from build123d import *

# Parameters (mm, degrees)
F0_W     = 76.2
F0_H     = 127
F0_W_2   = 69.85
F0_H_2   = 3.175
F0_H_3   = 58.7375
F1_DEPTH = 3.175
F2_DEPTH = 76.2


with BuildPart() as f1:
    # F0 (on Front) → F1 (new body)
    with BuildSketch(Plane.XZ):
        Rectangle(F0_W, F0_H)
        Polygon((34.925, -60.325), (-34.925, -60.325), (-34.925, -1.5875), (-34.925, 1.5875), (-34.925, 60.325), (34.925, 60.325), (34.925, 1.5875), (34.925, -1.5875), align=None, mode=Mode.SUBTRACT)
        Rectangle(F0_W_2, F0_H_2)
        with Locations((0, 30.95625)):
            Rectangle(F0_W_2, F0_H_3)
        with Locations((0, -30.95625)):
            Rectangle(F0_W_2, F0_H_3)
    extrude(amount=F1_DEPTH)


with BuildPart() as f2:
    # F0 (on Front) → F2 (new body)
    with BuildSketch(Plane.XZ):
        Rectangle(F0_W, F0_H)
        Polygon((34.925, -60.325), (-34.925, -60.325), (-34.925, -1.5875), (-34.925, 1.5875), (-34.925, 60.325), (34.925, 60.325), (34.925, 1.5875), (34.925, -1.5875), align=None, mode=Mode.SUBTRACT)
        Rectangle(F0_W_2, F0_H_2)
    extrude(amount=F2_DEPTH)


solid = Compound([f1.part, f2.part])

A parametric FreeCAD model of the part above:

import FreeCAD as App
import Part
import Sketcher
from FreeCAD import Vector
Q = App.Units.Quantity


def add_polygon(sketch, points):
    """Adds a closed chain of lines whose ends are joined by coincident constraints."""
    first, n = sketch.GeometryCount, len(points)
    for a, b in zip(points, points[1:] + points[:1]):
        sketch.addGeometry(Part.LineSegment(App.Vector(*a, 0), App.Vector(*b, 0)), False)
    for i in range(n):
        sketch.addConstraint(Sketcher.Constraint("Coincident", first + i, 2, first + (i + 1) % n, 1))

doc = App.newDocument("Part")
body = doc.addObject("PartDesign::Body", "Body")

# Sketch on XZ plane
sketch1 = doc.addObject("Sketcher::SketchObject", "Sketch")
body.addObject(sketch1)
sketch1.AttachmentSupport = (doc.XZ_Plane, [""])
sketch1.MapMode = "FlatFace"
add_polygon(sketch1, [(-38.1, 63.5), (-38.1, -63.5), (38.1, -63.5), (38.1, 63.5)])  # lines 0-3
sketch1.addConstraint(Sketcher.Constraint("Vertical", 0))
sketch1.addConstraint(Sketcher.Constraint("Horizontal", 1))
sketch1.addConstraint(Sketcher.Constraint("Vertical", 2))
sketch1.addConstraint(Sketcher.Constraint("Horizontal", 3))
sketch1.addConstraint(Sketcher.Constraint("Symmetric", 0, 2, 2, 2, -1, 1))
sketch1.addConstraint(Sketcher.Constraint("DistanceX", 1, 1, 1, 2, Q("3 in")))
sketch1.addConstraint(Sketcher.Constraint("DistanceY", 0, 2, 0, 1, Q("5 in")))
pad1 = doc.addObject("PartDesign::Pad", "Pad")
body.addObject(pad1)
pad1.Profile = sketch1
pad1.Length = Q("0.125 in")
body2 = doc.addObject("PartDesign::Body", "Body001")

# Sketch on XZ plane
sketch2 = doc.addObject("Sketcher::SketchObject", "Sketch001")
body2.addObject(sketch2)
sketch2.AttachmentSupport = (doc.getObject("XZ_Plane001"), [""])
sketch2.MapMode = "FlatFace"
add_polygon(sketch2, [(-38.1, 63.5), (-38.1, -63.5), (38.1, -63.5), (38.1, 63.5)])  # lines 0-3
add_polygon(sketch2, [(34.925, 60.325), (34.925, 1.5875), (-34.925, 1.5875), (-34.925, 60.325)])  # lines 4-7
add_polygon(sketch2, [(34.925, -1.5875), (34.925, -60.325), (-34.925, -60.325), (-34.925, -1.5875)])  # lines 8-11
sketch2.addConstraint(Sketcher.Constraint("Vertical", 0))
sketch2.addConstraint(Sketcher.Constraint("Horizontal", 1))
sketch2.addConstraint(Sketcher.Constraint("Vertical", 2))
sketch2.addConstraint(Sketcher.Constraint("Horizontal", 3))
sketch2.addConstraint(Sketcher.Constraint("Vertical", 4))
sketch2.addConstraint(Sketcher.Constraint("Horizontal", 5))
sketch2.addConstraint(Sketcher.Constraint("Vertical", 6))
sketch2.addConstraint(Sketcher.Constraint("Horizontal", 7))
sketch2.addConstraint(Sketcher.Constraint("Vertical", 8))
sketch2.addConstraint(Sketcher.Constraint("Horizontal", 9))
sketch2.addConstraint(Sketcher.Constraint("Vertical", 10))
sketch2.addConstraint(Sketcher.Constraint("Horizontal", 11))
sketch2.addConstraint(Sketcher.Constraint("Symmetric", 0, 2, 2, 2, -1, 1))
sketch2.addConstraint(Sketcher.Constraint("Symmetric", 6, 2, 8, 2, -1, 1))
sketch2.addConstraint(Sketcher.Constraint("Symmetric", 4, 2, 10, 2, -1, 1))
sketch2.addConstraint(Sketcher.Constraint("Vertical", 7, 2, 8, 2))
sketch2.addConstraint(Sketcher.Constraint("DistanceX", 1, 1, 1, 2, Q("3 in")))
sketch2.addConstraint(Sketcher.Constraint("DistanceY", 0, 2, 0, 1, Q("5 in")))
sketch2.addConstraint(Sketcher.Constraint("DistanceX", 5, 2, 5, 1, Q("2.75 in")))
sketch2.addConstraint(Sketcher.Constraint("DistanceY", 4, 2, 4, 1, Q("2.3125 in")))
sketch2.addConstraint(Sketcher.Constraint("DistanceY", 8, 2, 7, 2, Q("4.75 in")))
pad2 = doc.addObject("PartDesign::Pad", "Pad001")
body2.addObject(pad2)
pad2.Profile = sketch2
pad2.Length = Q("3 in")

doc.recompute()
